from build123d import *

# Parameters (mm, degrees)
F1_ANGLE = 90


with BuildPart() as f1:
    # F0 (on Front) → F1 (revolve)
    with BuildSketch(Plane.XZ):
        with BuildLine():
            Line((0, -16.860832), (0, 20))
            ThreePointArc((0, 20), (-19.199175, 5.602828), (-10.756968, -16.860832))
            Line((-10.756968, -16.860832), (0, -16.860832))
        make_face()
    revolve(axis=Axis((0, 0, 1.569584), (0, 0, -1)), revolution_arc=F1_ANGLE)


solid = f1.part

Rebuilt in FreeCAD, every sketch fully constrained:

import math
import FreeCAD as App
import Part
import Sketcher

V = App.Vector
Q = App.Units.Quantity

doc = App.newDocument("Part")
body = doc.addObject("PartDesign::Body", "Body")

sketch1 = body.newObject("Sketcher::SketchObject", "Sketch")
sketch1.AttachmentSupport = (doc.getObject("XZ_Plane"), [""])
sketch1.MapMode = "FlatFace"
sketch1.addGeometry([
    Part.LineSegment(V(0, -16.860832, 0), V(0, 20, 0)),
    Part.ArcOfCircle(Part.Circle(V(0, 0, 0), V(0, 0, 1), 20), math.radians(90), math.radians(237.46271)),
    Part.LineSegment(V(-10.756968, -16.860832, 0), V(0, -16.860832, 0)),
], False)
sketch1.addConstraint([
    Sketcher.Constraint("Coincident", 0, 2, 1, 1),
    Sketcher.Constraint("Coincident", 1, 2, 2, 1),
    Sketcher.Constraint("Coincident", 2, 2, 0, 1),
    Sketcher.Constraint("Vertical", 0),
    Sketcher.Constraint("Horizontal", 2),
    Sketcher.Constraint("Coincident", 1, 3, -1, 1),
    Sketcher.Constraint("PointOnObject", 0, 2, -2),
    Sketcher.Constraint("Radius", 1, Q("20 mm")),
    Sketcher.Constraint("DistanceX", 2, 1, 2, 2, Q("10.756968 mm")),
])
revolution = body.newObject("PartDesign::Revolution", "Revolution")
revolution.Profile = sketch1
revolution.ReferenceAxis = (sketch1, ["V_Axis"])
revolution.Angle = 90
revolution.Reversed = True

doc.recompute()
